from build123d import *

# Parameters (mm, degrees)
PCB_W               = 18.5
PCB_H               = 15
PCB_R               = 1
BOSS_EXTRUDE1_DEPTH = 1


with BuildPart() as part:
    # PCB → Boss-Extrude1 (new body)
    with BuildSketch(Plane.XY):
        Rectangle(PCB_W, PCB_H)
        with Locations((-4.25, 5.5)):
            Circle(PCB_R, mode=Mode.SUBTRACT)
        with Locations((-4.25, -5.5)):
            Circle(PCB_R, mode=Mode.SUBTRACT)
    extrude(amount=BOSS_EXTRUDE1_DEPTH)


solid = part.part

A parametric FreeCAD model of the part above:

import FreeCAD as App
import Part
import Sketcher
Q = App.Units.Quantity


def add_polygon(sketch, points):
    """Adds a closed chain of lines whose ends are joined by coincident constraints."""
    first, n = sketch.GeometryCount, len(points)
    for a, b in zip(points, points[1:] + points[:1]):
        sketch.addGeometry(Part.LineSegment(App.Vector(*a, 0), App.Vector(*b, 0)), False)
    for i in range(n):
        sketch.addConstraint(Sketcher.Constraint("Coincident", first + i, 2, first + (i + 1) % n, 1))

doc = App.newDocument("Part")
body = doc.addObject("PartDesign::Body", "Body")

sketch1 = body.newObject("Sketcher::SketchObject", "Sketch")
sketch1.AttachmentSupport = (doc.getObject("XY_Plane"), [""])
sketch1.MapMode = "FlatFace"
add_polygon(sketch1, [(-9.2, 7.5), (-9.2, -7.5), (9.2, -7.5), (9.2, 7.5)])
sketch1.addGeometry(Part.Circle(App.Vector(-4.2, -5.5, 0), App.Vector(0, 0, 1), 1), False)
sketch1.addGeometry(Part.Circle(App.Vector(-4.2, 5.5, 0), App.Vector(0, 0, 1), 1), False)
sketch1.addConstraint(Sketcher.Constraint("Vertical", 0))
sketch1.addConstraint(Sketcher.Constraint("Horizontal", 1))
sketch1.addConstraint(Sketcher.Constraint("Vertical", 2))
sketch1.addConstraint(Sketcher.Constraint("Horizontal", 3))
sketch1.addConstraint(Sketcher.Constraint("Equal", 4, 5))
sketch1.addConstraint(Sketcher.Constraint("Symmetric", 0, 2, 2, 2, -1, 1))
sketch1.addConstraint(Sketcher.Constraint("Symmetric", 4, 3, 5, 3, -1))
sketch1.addConstraint(Sketcher.Constraint("Diameter", 4, Q("2 mm")))
sketch1.addConstraint(Sketcher.Constraint("DistanceY", 0, 2, 0, 1, Q("15 mm")))
sketch1.addConstraint(Sketcher.Constraint("DistanceX", 1, 1, 1, 2, Q("18.5 mm")))
sketch1.addConstraint(Sketcher.Constraint("DistanceY", 4, 3, 5, 3, Q("11 mm")))
sketch1.addConstraint(Sketcher.Constraint("DistanceX", 0, 2, 4, 3, Q("5 mm")))
pad1 = body.newObject("PartDesign::Pad", "Pad")
pad1.Profile = sketch1
pad1.Length = 1

doc.recompute()
